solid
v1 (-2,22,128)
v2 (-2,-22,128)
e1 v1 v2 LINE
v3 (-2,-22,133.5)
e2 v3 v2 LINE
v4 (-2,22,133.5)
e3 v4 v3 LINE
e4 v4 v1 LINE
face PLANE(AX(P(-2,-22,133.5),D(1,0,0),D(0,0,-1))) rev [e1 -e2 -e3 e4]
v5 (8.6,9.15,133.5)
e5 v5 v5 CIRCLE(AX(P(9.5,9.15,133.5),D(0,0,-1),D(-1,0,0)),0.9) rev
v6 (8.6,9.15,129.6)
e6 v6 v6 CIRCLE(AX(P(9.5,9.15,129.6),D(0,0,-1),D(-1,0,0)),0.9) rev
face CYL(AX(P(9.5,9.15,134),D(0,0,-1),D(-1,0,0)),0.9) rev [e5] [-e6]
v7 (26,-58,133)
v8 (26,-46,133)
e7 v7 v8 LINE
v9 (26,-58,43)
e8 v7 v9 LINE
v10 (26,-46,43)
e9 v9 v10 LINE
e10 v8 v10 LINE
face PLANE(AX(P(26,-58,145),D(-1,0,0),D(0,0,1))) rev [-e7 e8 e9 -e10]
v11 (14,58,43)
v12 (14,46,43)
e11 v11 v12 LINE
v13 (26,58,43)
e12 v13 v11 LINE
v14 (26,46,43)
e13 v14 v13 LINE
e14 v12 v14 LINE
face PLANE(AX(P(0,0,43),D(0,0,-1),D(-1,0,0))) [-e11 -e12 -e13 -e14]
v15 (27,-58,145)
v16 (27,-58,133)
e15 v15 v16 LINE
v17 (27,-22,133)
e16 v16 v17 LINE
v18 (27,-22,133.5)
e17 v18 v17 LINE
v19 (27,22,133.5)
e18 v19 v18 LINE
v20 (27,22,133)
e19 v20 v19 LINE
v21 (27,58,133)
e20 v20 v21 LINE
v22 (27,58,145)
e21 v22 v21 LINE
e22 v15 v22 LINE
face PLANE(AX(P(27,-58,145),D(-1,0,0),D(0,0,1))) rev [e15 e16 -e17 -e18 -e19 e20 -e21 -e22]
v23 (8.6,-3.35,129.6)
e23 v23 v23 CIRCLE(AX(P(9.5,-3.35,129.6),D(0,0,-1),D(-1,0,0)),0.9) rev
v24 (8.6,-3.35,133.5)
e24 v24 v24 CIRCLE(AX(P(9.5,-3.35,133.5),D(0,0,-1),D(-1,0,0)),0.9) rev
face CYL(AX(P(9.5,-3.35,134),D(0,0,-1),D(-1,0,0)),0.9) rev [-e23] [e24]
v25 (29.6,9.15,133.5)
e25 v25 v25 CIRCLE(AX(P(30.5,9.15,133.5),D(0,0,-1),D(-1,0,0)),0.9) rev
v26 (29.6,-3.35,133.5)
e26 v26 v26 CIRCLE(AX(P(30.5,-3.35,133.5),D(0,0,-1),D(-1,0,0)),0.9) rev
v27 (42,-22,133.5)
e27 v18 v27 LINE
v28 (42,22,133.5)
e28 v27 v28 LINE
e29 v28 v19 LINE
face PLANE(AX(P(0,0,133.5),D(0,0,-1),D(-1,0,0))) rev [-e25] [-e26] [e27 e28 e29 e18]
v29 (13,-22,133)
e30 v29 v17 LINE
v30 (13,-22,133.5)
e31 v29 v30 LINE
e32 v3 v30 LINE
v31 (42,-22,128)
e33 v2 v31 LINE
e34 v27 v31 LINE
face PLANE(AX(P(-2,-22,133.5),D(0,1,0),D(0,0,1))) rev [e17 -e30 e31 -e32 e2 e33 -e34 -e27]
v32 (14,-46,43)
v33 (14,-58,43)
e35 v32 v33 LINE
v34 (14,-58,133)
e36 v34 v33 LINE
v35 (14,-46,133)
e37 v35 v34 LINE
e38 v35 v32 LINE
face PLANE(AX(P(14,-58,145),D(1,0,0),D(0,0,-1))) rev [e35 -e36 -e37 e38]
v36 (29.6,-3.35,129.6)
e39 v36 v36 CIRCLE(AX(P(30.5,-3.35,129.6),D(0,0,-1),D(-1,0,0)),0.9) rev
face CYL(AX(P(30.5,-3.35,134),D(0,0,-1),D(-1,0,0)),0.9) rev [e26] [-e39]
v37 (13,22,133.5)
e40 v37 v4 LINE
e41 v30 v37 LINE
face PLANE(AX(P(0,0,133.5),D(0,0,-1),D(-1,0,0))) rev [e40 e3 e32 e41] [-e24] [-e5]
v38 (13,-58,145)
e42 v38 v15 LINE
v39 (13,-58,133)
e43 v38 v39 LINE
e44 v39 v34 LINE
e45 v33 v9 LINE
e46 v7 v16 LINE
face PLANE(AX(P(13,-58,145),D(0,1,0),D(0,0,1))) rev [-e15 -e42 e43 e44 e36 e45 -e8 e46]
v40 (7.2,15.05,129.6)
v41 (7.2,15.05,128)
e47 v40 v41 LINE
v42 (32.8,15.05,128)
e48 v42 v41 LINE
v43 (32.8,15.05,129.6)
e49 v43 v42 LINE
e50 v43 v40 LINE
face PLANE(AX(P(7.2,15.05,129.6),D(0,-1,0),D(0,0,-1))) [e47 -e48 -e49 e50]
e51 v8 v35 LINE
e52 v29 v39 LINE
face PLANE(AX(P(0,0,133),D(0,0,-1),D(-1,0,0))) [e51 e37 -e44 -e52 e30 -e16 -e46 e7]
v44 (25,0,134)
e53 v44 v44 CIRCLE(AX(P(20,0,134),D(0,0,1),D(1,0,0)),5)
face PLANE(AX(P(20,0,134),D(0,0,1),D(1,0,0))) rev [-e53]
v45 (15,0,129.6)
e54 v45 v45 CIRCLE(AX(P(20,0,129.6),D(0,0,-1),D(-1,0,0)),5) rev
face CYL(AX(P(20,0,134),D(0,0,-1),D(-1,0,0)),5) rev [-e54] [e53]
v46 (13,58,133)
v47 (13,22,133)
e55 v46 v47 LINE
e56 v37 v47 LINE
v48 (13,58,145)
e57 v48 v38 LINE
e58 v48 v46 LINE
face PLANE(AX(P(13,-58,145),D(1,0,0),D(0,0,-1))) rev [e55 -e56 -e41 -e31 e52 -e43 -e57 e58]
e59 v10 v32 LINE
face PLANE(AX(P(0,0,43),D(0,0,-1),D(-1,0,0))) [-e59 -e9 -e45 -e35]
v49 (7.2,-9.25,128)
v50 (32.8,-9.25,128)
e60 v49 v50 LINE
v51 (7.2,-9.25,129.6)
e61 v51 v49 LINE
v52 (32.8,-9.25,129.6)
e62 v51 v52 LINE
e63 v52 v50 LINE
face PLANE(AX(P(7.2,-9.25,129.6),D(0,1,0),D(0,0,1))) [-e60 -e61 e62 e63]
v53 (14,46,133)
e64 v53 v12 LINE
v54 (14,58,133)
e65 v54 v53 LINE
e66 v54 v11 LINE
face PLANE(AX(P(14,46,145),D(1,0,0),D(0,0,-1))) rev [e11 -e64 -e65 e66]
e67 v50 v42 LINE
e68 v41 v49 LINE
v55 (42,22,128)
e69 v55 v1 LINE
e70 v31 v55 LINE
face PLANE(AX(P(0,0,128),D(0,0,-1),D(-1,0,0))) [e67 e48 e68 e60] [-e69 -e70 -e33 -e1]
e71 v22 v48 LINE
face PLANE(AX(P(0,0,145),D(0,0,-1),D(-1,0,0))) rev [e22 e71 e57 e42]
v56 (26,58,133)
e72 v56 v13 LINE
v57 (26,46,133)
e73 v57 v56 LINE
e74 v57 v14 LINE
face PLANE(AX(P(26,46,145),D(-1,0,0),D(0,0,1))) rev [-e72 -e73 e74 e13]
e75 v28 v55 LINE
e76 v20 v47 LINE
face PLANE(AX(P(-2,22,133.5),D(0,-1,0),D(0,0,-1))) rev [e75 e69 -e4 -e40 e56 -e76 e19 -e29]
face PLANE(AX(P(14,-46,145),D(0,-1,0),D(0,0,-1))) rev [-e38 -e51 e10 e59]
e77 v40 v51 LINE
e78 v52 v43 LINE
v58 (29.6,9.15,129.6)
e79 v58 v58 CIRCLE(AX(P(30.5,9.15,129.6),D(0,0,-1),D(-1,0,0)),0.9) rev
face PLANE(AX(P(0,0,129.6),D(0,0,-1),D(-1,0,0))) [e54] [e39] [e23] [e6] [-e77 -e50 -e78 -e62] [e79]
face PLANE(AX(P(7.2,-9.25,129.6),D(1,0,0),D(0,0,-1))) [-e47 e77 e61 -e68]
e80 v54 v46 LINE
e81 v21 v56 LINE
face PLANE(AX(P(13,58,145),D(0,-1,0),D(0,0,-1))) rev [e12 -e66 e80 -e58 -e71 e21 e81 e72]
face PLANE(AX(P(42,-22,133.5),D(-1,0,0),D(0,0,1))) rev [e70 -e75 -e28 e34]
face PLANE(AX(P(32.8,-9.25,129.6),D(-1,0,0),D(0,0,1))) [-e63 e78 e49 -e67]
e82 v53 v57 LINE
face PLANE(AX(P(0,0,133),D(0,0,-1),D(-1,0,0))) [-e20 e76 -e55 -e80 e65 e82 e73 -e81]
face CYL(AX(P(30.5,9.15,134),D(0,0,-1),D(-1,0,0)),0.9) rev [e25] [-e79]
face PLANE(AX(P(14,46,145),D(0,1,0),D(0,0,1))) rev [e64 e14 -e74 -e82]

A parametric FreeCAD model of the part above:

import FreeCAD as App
import Part
import Sketcher
from FreeCAD import Vector


def add_polygon(sketch, points):
    """Adds a closed chain of lines whose ends are joined by coincident constraints."""
    first, n = sketch.GeometryCount, len(points)
    for a, b in zip(points, points[1:] + points[:1]):
        sketch.addGeometry(Part.LineSegment(App.Vector(*a, 0), App.Vector(*b, 0)), False)
    for i in range(n):
        sketch.addConstraint(Sketcher.Constraint("Coincident", first + i, 2, first + (i + 1) % n, 1))

doc = App.newDocument("Part")
body = doc.addObject("PartDesign::Body", "Body")

sketch1 = doc.addObject("Sketcher::SketchObject", "Sketch")
body.addObject(sketch1)
sketch1.AttachmentSupport = (doc.XY_Plane, [""])
sketch1.MapMode = "FlatFace"
sketch1.AttachmentOffset = App.Placement(Vector(0, 0, 133), App.Rotation())
add_polygon(sketch1, [(13, 58), (13, -58), (27, -58), (27, 58)])
sketch1.addConstraint([
    Sketcher.Constraint("Vertical", 0),
    Sketcher.Constraint("Horizontal", 1),
    Sketcher.Constraint("Vertical", 2),
    Sketcher.Constraint("Horizontal", 3),
    Sketcher.Constraint("DistanceX", 1, 1, 1, 2, 14.0),
    Sketcher.Constraint("DistanceY", 0, 2, 0, 1, 116.0),
    Sketcher.Constraint("DistanceX", -1, 1, 0, 2, 13.0),
    Sketcher.Constraint("DistanceY", 0, 2, -1, 1, 58.0),
])
pad1 = doc.addObject("PartDesign::Pad", "Pad")
body.addObject(pad1)
pad1.Profile = sketch1
pad1.Length = 12

sketch2 = doc.addObject("Sketcher::SketchObject", "Sketch001")
body.addObject(sketch2)
sketch2.AttachmentSupport = (doc.XY_Plane, [""])
sketch2.MapMode = "FlatFace"
sketch2.AttachmentOffset = App.Placement(Vector(0, 0, 43), App.Rotation())
add_polygon(sketch2, [(14, -46), (14, -58), (26, -58), (26, -46)])
sketch2.addConstraint([
    Sketcher.Constraint("Vertical", 0),
    Sketcher.Constraint("Horizontal", 1),
    Sketcher.Constraint("Vertical", 2),
    Sketcher.Constraint("Horizontal", 3),
    Sketcher.Constraint("Equal", 3, 0),
    Sketcher.Constraint("DistanceX", 1, 1, 1, 2, 12.0),
    Sketcher.Constraint("DistanceX", -1, 1, 0, 2, 14.0),
    Sketcher.Constraint("DistanceY", 0, 2, -1, 1, 58.0),
])
pad2 = doc.addObject("PartDesign::Pad", "Pad001")
body.addObject(pad2)
pad2.Profile = sketch2
pad2.Length = 102

sketch3 = doc.addObject("Sketcher::SketchObject", "Sketch002")
body.addObject(sketch3)
sketch3.AttachmentSupport = (doc.XY_Plane, [""])
sketch3.MapMode = "FlatFace"
sketch3.AttachmentOffset = App.Placement(Vector(0, 0, 43), App.Rotation())
add_polygon(sketch3, [(14, 58), (14, 46), (26, 46), (26, 58)])
sketch3.addConstraint([
    Sketcher.Constraint("Vertical", 0),
    Sketcher.Constraint("Horizontal", 1),
    Sketcher.Constraint("Vertical", 2),
    Sketcher.Constraint("Horizontal", 3),
    Sketcher.Constraint("Equal", 3, 0),
    Sketcher.Constraint("DistanceX", 1, 1, 1, 2, 12.0),
    Sketcher.Constraint("DistanceX", -1, 1, 0, 2, 14.0),
    Sketcher.Constraint("DistanceY", -1, 1, 0, 2, 46.0),
])
pad3 = doc.addObject("PartDesign::Pad", "Pad002")
body.addObject(pad3)
pad3.Profile = sketch3
pad3.Length = 102

sketch4 = doc.addObject("Sketcher::SketchObject", "Sketch003")
body.addObject(sketch4)
sketch4.AttachmentSupport = (doc.XY_Plane, [""])
sketch4.MapMode = "FlatFace"
sketch4.AttachmentOffset = App.Placement(Vector(0, 0, 128), App.Rotation())
add_polygon(sketch4, [(-2, 22), (-2, -22), (42, -22), (42, 22)])
sketch4.addConstraint([
    Sketcher.Constraint("Vertical", 0),
    Sketcher.Constraint("Horizontal", 1),
    Sketcher.Constraint("Vertical", 2),
    Sketcher.Constraint("Horizontal", 3),
    Sketcher.Constraint("Equal", 3, 0),
    Sketcher.Constraint("DistanceX", 1, 1, 1, 2, 44.0),
    Sketcher.Constraint("DistanceX", 0, 2, -1, 1, 2.0),
    Sketcher.Constraint("DistanceY", 0, 2, -1, 1, 22.0),
])
pad4 = doc.addObject("PartDesign::Pad", "Pad003")
body.addObject(pad4)
pad4.Profile = sketch4
pad4.Length = 5.5

sketch5 = doc.addObject("Sketcher::SketchObject", "Sketch004")
body.addObject(sketch5)
sketch5.AttachmentSupport = (doc.XY_Plane, [""])
sketch5.MapMode = "FlatFace"
sketch5.AttachmentOffset = App.Placement(Vector(0, 0, 128), App.Rotation())
add_polygon(sketch5, [(7, 15), (7, -9), (33, -9), (33, 15)])
sketch5.addConstraint([
    Sketcher.Constraint("Vertical", 0),
    Sketcher.Constraint("Horizontal", 1),
    Sketcher.Constraint("Vertical", 2),
    Sketcher.Constraint("Horizontal", 3),
    Sketcher.Constraint("DistanceX", 1, 1, 1, 2, 25.6),
    Sketcher.Constraint("DistanceY", 0, 2, 0, 1, 24.3),
    Sketcher.Constraint("DistanceX", -1, 1, 0, 2, 7.2),
    Sketcher.Constraint("DistanceY", 0, 2, -1, 1, 9.25),
])
pocket1 = doc.addObject("PartDesign::Pocket", "Pocket")
body.addObject(pocket1)
pocket1.Profile = sketch5
pocket1.Length = 1.6
pocket1.Reversed = True

sketch6 = doc.addObject("Sketcher::SketchObject", "Sketch005")
body.addObject(sketch6)
sketch6.AttachmentSupport = (doc.XY_Plane, [""])
sketch6.MapMode = "FlatFace"
sketch6.AttachmentOffset = App.Placement(Vector(0, 0, 127), App.Rotation())
sketch6.addGeometry(Part.Circle(Vector(20, 0, 0), Vector(0, 0, 1), 5), False)
sketch6.addConstraint([
    Sketcher.Constraint("PointOnObject", 0, 3, -1),
    Sketcher.Constraint("Diameter", 0, 10.0),
    Sketcher.Constraint("DistanceX", -1, 1, 0, 3, 20.0),
])
pocket2 = doc.addObject("PartDesign::Pocket", "Pocket001")
body.addObject(pocket2)
pocket2.Profile = sketch6
pocket2.Length = 7
pocket2.Reversed = True

sketch7 = doc.addObject("Sketcher::SketchObject", "Sketch006")
body.addObject(sketch7)
sketch7.AttachmentSupport = (doc.XY_Plane, [""])
sketch7.MapMode = "FlatFace"
sketch7.AttachmentOffset = App.Placement(Vector(0, 0, 127), App.Rotation())
sketch7.addGeometry(Part.Circle(Vector(9.5, -3.4, 0), Vector(0, 0, 1), 0.9), False)
sketch7.addConstraint([
    Sketcher.Constraint("Diameter", 0, 1.8),
    Sketcher.Constraint("DistanceX", -1, 1, 0, 3, 9.5),
    Sketcher.Constraint("DistanceY", 0, 3, -1, 1, 3.35),
])
pocket3 = doc.addObject("PartDesign::Pocket", "Pocket002")
body.addObject(pocket3)
pocket3.Profile = sketch7
pocket3.Length = 7
pocket3.Reversed = True

sketch8 = doc.addObject("Sketcher::SketchObject", "Sketch007")
body.addObject(sketch8)
sketch8.AttachmentSupport = (doc.XY_Plane, [""])
sketch8.MapMode = "FlatFace"
sketch8.AttachmentOffset = App.Placement(Vector(0, 0, 127), App.Rotation())
sketch8.addGeometry(Part.Circle(Vector(9.5, 9.2, 0), Vector(0, 0, 1), 0.9), False)
sketch8.addConstraint([
    Sketcher.Constraint("Diameter", 0, 1.8),
    Sketcher.Constraint("DistanceX", -1, 1, 0, 3, 9.5),
    Sketcher.Constraint("DistanceY", -1, 1, 0, 3, 9.15),
])
pocket4 = doc.addObject("PartDesign::Pocket", "Pocket003")
body.addObject(pocket4)
pocket4.Profile = sketch8
pocket4.Length = 7
pocket4.Reversed = True

sketch9 = doc.addObject("Sketcher::SketchObject", "Sketch008")
body.addObject(sketch9)
sketch9.AttachmentSupport = (doc.XY_Plane, [""])
sketch9.MapMode = "FlatFace"
sketch9.AttachmentOffset = App.Placement(Vector(0, 0, 127), App.Rotation())
sketch9.addGeometry(Part.Circle(Vector(30.5, -3.4, 0), Vector(0, 0, 1), 0.9), False)
sketch9.addConstraint([
    Sketcher.Constraint("Diameter", 0, 1.8),
    Sketcher.Constraint("DistanceX", -1, 1, 0, 3, 30.5),
    Sketcher.Constraint("DistanceY", 0, 3, -1, 1, 3.35),
])
pocket5 = doc.addObject("PartDesign::Pocket", "Pocket004")
body.addObject(pocket5)
pocket5.Profile = sketch9
pocket5.Length = 7
pocket5.Reversed = True

sketch10 = doc.addObject("Sketcher::SketchObject", "Sketch009")
body.addObject(sketch10)
sketch10.AttachmentSupport = (doc.XY_Plane, [""])
sketch10.MapMode = "FlatFace"
sketch10.AttachmentOffset = App.Placement(Vector(0, 0, 127), App.Rotation())
sketch10.addGeometry(Part.Circle(Vector(30.5, 9.2, 0), Vector(0, 0, 1), 0.9), False)
sketch10.addConstraint([
    Sketcher.Constraint("Diameter", 0, 1.8),
    Sketcher.Constraint("DistanceX", -1, 1, 0, 3, 30.5),
    Sketcher.Constraint("DistanceY", -1, 1, 0, 3, 9.15),
])
pocket6 = doc.addObject("PartDesign::Pocket", "Pocket005")
body.addObject(pocket6)
pocket6.Profile = sketch10
pocket6.Length = 7
pocket6.Reversed = True

doc.recompute()
